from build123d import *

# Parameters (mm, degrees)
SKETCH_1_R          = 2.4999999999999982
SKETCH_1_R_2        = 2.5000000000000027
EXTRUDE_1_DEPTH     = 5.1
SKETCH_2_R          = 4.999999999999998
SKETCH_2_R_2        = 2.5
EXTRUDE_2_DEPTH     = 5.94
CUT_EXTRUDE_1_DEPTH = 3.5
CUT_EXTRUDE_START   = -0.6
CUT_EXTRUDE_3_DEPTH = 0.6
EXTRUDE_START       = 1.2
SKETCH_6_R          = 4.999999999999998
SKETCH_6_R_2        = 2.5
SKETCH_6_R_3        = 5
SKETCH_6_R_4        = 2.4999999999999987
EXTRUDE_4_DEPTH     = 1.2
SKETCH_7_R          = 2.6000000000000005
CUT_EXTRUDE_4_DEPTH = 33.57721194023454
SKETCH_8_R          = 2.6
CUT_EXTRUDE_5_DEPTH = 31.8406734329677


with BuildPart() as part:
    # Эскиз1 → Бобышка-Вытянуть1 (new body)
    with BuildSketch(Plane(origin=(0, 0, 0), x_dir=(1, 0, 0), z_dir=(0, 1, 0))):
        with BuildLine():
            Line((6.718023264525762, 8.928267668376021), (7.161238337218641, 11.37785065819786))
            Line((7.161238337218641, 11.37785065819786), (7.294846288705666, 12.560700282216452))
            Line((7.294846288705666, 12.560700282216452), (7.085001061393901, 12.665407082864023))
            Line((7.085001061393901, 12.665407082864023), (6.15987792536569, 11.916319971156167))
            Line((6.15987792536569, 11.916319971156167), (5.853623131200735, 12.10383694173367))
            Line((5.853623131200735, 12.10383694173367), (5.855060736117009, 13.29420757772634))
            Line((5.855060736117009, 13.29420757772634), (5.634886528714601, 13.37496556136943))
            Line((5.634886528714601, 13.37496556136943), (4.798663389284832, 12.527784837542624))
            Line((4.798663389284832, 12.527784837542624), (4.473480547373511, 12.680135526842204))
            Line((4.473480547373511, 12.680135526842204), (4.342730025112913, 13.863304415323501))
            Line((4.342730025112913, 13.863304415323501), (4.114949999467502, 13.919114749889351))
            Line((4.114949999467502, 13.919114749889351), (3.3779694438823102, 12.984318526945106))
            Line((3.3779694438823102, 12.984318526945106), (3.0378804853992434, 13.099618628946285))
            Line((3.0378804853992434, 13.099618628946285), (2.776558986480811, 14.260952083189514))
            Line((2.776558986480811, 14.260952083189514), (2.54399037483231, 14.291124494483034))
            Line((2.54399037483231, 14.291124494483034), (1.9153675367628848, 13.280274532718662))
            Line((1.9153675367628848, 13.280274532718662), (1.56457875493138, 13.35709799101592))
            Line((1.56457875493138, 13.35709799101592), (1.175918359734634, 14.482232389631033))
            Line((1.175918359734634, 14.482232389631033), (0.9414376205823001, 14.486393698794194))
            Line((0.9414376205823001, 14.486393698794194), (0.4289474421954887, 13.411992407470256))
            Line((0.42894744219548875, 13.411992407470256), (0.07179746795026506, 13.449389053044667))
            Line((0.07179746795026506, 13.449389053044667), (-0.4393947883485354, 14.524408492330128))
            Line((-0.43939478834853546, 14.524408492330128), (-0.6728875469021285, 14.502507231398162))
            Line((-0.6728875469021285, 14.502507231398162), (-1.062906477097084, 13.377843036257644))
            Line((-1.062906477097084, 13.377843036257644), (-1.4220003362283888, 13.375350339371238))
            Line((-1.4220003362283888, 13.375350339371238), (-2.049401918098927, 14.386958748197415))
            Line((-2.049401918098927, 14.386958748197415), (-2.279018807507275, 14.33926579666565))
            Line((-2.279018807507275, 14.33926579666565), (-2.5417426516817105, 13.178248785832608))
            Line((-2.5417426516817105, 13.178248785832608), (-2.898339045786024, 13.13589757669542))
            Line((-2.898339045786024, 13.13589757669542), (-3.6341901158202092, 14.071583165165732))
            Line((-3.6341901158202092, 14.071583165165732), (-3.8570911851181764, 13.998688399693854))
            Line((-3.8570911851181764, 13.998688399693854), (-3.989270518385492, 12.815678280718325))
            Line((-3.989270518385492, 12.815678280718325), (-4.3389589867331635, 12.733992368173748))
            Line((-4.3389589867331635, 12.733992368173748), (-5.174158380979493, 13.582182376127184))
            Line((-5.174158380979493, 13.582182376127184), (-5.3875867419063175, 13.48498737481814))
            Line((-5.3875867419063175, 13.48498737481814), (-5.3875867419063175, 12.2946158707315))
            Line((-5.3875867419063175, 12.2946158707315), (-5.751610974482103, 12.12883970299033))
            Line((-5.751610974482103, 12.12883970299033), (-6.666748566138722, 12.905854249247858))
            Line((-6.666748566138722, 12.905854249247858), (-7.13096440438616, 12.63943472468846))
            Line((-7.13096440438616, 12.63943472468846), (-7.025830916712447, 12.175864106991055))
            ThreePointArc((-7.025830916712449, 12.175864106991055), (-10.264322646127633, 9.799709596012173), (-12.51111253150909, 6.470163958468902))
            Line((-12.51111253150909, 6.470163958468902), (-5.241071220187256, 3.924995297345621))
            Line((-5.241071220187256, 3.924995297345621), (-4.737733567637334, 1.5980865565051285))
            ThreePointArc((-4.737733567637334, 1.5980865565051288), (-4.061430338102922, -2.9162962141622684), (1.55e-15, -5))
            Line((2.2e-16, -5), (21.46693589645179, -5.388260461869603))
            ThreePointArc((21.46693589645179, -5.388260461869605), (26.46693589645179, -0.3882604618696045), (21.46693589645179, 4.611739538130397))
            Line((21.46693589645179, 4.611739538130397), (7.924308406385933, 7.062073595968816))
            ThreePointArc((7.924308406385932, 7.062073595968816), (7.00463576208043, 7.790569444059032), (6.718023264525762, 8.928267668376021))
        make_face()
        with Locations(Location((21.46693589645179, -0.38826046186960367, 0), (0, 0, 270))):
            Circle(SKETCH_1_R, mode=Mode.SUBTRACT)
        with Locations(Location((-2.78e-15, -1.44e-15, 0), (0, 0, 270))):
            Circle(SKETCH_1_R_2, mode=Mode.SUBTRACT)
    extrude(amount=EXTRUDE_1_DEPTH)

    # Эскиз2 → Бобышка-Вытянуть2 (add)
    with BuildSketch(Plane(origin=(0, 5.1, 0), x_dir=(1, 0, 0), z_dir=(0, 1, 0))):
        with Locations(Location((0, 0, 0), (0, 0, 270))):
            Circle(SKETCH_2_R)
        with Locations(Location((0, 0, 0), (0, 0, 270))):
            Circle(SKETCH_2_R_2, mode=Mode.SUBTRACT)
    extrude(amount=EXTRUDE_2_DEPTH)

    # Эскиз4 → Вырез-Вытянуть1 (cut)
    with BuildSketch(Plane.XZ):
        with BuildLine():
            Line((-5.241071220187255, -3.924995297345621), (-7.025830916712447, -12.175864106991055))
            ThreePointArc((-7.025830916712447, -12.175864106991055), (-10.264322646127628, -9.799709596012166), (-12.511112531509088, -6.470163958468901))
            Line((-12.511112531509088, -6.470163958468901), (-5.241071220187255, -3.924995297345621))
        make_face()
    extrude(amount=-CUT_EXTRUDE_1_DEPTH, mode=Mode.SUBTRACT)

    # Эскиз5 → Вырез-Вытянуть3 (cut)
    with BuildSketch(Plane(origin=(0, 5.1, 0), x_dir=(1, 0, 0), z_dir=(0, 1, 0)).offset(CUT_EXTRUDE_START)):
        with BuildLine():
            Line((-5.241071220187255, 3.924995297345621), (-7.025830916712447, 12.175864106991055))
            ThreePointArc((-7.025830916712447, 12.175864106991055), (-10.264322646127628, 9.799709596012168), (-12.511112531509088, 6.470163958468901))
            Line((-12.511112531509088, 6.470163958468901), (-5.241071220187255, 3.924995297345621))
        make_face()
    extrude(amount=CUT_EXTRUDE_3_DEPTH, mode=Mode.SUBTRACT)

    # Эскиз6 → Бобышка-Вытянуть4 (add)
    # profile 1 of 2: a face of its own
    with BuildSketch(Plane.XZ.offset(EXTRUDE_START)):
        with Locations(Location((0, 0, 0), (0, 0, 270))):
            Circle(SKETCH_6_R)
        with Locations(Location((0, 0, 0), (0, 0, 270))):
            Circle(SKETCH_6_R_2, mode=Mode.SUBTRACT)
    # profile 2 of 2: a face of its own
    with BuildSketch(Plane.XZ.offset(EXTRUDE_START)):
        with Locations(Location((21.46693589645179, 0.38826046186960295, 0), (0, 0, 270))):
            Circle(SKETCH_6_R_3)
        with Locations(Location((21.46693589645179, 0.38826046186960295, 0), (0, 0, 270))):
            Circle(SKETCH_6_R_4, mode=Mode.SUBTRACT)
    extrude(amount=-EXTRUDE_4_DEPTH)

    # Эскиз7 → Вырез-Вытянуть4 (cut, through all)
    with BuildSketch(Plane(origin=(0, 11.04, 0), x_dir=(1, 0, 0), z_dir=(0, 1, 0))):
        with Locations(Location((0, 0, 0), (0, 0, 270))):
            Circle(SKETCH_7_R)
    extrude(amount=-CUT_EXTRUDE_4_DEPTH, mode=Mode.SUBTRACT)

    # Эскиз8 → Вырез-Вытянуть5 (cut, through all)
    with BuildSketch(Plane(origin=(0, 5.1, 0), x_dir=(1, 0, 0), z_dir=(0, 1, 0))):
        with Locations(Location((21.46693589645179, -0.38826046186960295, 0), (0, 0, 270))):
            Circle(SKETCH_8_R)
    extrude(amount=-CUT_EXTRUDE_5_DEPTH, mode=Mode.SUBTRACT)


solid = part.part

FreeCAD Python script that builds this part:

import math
import FreeCAD as App
import Part
import Sketcher
Q = App.Units.Quantity

doc = App.newDocument("Part")
params = doc.addObject("Spreadsheet::Sheet", "Params")
for row, (alias, value) in enumerate([
    ("sketch1_diameter", "5 mm"),
    ("sketch1_diameter2", "5 mm"),
    ("sketch1_radius", "5 mm"),
    ("sketch1_radius2", "5 mm"),
    ("pad1_length", "5.1 mm"),
    ("sketch2_diameter", "10 mm"),
    ("sketch2_diameter2", "5 mm"),
    ("pad2_length", "5.94 mm"),
    ("pocket1_length", "3.5 mm"),
    ("pocket2_length", "0.6 mm"),
    ("sketch5_diameter", "10 mm"),
    ("sketch5_diameter2", "5 mm"),
    ("pad3_length", "1.2 mm"),
    ("sketch6_diameter", "5.2 mm"),
    ("sketch7_diameter", "5.2 mm"),
], start=1):
    params.set(f"A{row}", alias)
    params.set(f"B{row}", "=" + value)
    params.setAlias(f"B{row}", alias)

body = doc.addObject("PartDesign::Body", "Body")

# Sketch on XZ plane
sketch1 = doc.addObject("Sketcher::SketchObject", "Sketch")
body.addObject(sketch1)
sketch1.AttachmentSupport = (doc.XZ_Plane, [""])
sketch1.MapMode = "FlatFace"
sketch1.addGeometry([
    Part.LineSegment(App.Vector(6.718023, -8.928268, 0), App.Vector(7.161238, -11.377851, 0)),  # 0
    Part.LineSegment(App.Vector(7.161238, -11.377851, 0), App.Vector(7.294846, -12.5607, 0)),  # 1
    Part.LineSegment(App.Vector(7.294846, -12.5607, 0), App.Vector(7.085001, -12.665407, 0)),  # 2
    Part.LineSegment(App.Vector(7.085001, -12.665407, 0), App.Vector(6.159878, -11.91632, 0)),  # 3
    Part.LineSegment(App.Vector(6.159878, -11.91632, 0), App.Vector(5.853623, -12.103837, 0)),  # 4
    Part.LineSegment(App.Vector(5.853623, -12.103837, 0), App.Vector(5.855061, -13.294208, 0)),  # 5
    Part.LineSegment(App.Vector(5.855061, -13.294208, 0), App.Vector(5.634887, -13.374966, 0)),  # 6
    Part.LineSegment(App.Vector(5.634887, -13.374966, 0), App.Vector(4.798663, -12.527785, 0)),  # 7
    Part.LineSegment(App.Vector(4.798663, -12.527785, 0), App.Vector(4.473481, -12.680136, 0)),  # 8
    Part.LineSegment(App.Vector(4.473481, -12.680136, 0), App.Vector(4.34273, -13.863304, 0)),  # 9
    Part.LineSegment(App.Vector(4.34273, -13.863304, 0), App.Vector(4.11495, -13.919115, 0)),  # 10
    Part.LineSegment(App.Vector(4.11495, -13.919115, 0), App.Vector(3.377969, -12.984319, 0)),  # 11
    Part.LineSegment(App.Vector(3.377969, -12.984319, 0), App.Vector(3.03788, -13.099619, 0)),  # 12
    Part.LineSegment(App.Vector(3.03788, -13.099619, 0), App.Vector(2.776559, -14.260952, 0)),  # 13
    Part.LineSegment(App.Vector(2.776559, -14.260952, 0), App.Vector(2.54399, -14.291124, 0)),  # 14
    Part.LineSegment(App.Vector(2.54399, -14.291124, 0), App.Vector(1.915368, -13.280275, 0)),  # 15
    Part.LineSegment(App.Vector(1.915368, -13.280275, 0), App.Vector(1.564579, -13.357098, 0)),  # 16
    Part.LineSegment(App.Vector(1.564579, -13.357098, 0), App.Vector(1.175918, -14.482232, 0)),  # 17
    Part.LineSegment(App.Vector(1.175918, -14.482232, 0), App.Vector(0.941438, -14.486394, 0)),  # 18
    Part.LineSegment(App.Vector(0.941438, -14.486394, 0), App.Vector(0.428947, -13.411992, 0)),  # 19
    Part.LineSegment(App.Vector(0.428947, -13.411992, 0), App.Vector(0.071797, -13.449389, 0)),  # 20
    Part.LineSegment(App.Vector(0.071797, -13.449389, 0), App.Vector(-0.439395, -14.524408, 0)),  # 21
    Part.LineSegment(App.Vector(-0.439395, -14.524408, 0), App.Vector(-0.672888, -14.502507, 0)),  # 22
    Part.LineSegment(App.Vector(-0.672888, -14.502507, 0), App.Vector(-1.062906, -13.377843, 0)),  # 23
    Part.LineSegment(App.Vector(-1.062906, -13.377843, 0), App.Vector(-1.422, -13.37535, 0)),  # 24
    Part.LineSegment(App.Vector(-1.422, -13.37535, 0), App.Vector(-2.049402, -14.386959, 0)),  # 25
    Part.LineSegment(App.Vector(-2.049402, -14.386959, 0), App.Vector(-2.279019, -14.339266, 0)),  # 26
    Part.LineSegment(App.Vector(-2.279019, -14.339266, 0), App.Vector(-2.541743, -13.178249, 0)),  # 27
    Part.LineSegment(App.Vector(-2.541743, -13.178249, 0), App.Vector(-2.898339, -13.135898, 0)),  # 28
    Part.LineSegment(App.Vector(-2.898339, -13.135898, 0), App.Vector(-3.63419, -14.071583, 0)),  # 29
    Part.LineSegment(App.Vector(-3.63419, -14.071583, 0), App.Vector(-3.857091, -13.998688, 0)),  # 30
    Part.LineSegment(App.Vector(-3.857091, -13.998688, 0), App.Vector(-3.989271, -12.815678, 0)),  # 31
    Part.LineSegment(App.Vector(-3.989271, -12.815678, 0), App.Vector(-4.338959, -12.733992, 0)),  # 32
    Part.LineSegment(App.Vector(-4.338959, -12.733992, 0), App.Vector(-5.174158, -13.582182, 0)),  # 33
    Part.LineSegment(App.Vector(-5.174158, -13.582182, 0), App.Vector(-5.387587, -13.484987, 0)),  # 34
    Part.LineSegment(App.Vector(-5.387587, -13.484987, 0), App.Vector(-5.387587, -12.294616, 0)),  # 35
    Part.LineSegment(App.Vector(-5.387587, -12.294616, 0), App.Vector(-5.751611, -12.12884, 0)),  # 36
    Part.LineSegment(App.Vector(-5.751611, -12.12884, 0), App.Vector(-6.666749, -12.905854, 0)),  # 37
    Part.LineSegment(App.Vector(-6.666749, -12.905854, 0), App.Vector(-7.130964, -12.639435, 0)),  # 38
    Part.LineSegment(App.Vector(-7.130964, -12.639435, 0), App.Vector(-7.025831, -12.175864, 0)),  # 39
    Part.ArcOfCircle(Part.Circle(App.Vector(-1.809542, -1.671548, 0), App.Vector(0, 0, 1), 11.728185), math.radians(-155.848394), math.radians(-116.408319)),  # 40
    Part.LineSegment(App.Vector(-12.511113, -6.470164, 0), App.Vector(-5.241071, -3.924995, 0)),  # 41
    Part.LineSegment(App.Vector(-5.241071, -3.924995, 0), App.Vector(-4.737734, -1.598087, 0)),  # 42
    Part.ArcOfCircle(Part.Circle(App.Vector(0, 0, 0), App.Vector(0, 0, 1), 5), math.radians(90), math.radians(198.639783)),  # 43
    Part.LineSegment(App.Vector(0, 5, 0), App.Vector(21.466936, 5.38826, 0)),  # 44
    Part.ArcOfCircle(Part.Circle(App.Vector(21.466936, 0.38826, 0), App.Vector(0, 0, 1), 5), math.radians(-90), math.radians(90)),  # 45
    Part.LineSegment(App.Vector(21.466936, -4.61174, 0), App.Vector(7.924308, -7.062074, 0)),  # 46
    Part.ArcOfCircle(Part.Circle(App.Vector(8.538236, -8.78187, 0), App.Vector(0, 0, 1), 1.826091), math.radians(109.645397), math.radians(184.598331)),  # 47
    Part.Circle(App.Vector(21.466936, 0.38826, 0), App.Vector(0, 0, 1), 2.5),  # 48
    Part.Circle(App.Vector(0, 0, 0), App.Vector(0, 0, 1), 2.5),  # 49
], False)
sketch1.addConstraint([
    Sketcher.Constraint("Coincident", 0, 2, 1, 1),
    Sketcher.Constraint("Coincident", 1, 2, 2, 1),
    Sketcher.Constraint("Coincident", 2, 2, 3, 1),
    Sketcher.Constraint("Coincident", 3, 2, 4, 1),
    Sketcher.Constraint("Coincident", 4, 2, 5, 1),
    Sketcher.Constraint("Coincident", 5, 2, 6, 1),
    Sketcher.Constraint("Coincident", 6, 2, 7, 1),
    Sketcher.Constraint("Coincident", 7, 2, 8, 1),
    Sketcher.Constraint("Coincident", 8, 2, 9, 1),
    Sketcher.Constraint("Coincident", 9, 2, 10, 1),
    Sketcher.Constraint("Coincident", 10, 2, 11, 1),
    Sketcher.Constraint("Coincident", 11, 2, 12, 1),
    Sketcher.Constraint("Coincident", 12, 2, 13, 1),
    Sketcher.Constraint("Coincident", 13, 2, 14, 1),
    Sketcher.Constraint("Coincident", 14, 2, 15, 1),
    Sketcher.Constraint("Coincident", 15, 2, 16, 1),
    Sketcher.Constraint("Coincident", 16, 2, 17, 1),
    Sketcher.Constraint("Coincident", 17, 2, 18, 1),
    Sketcher.Constraint("Coincident", 18, 2, 19, 1),
    Sketcher.Constraint("Coincident", 19, 2, 20, 1),
    Sketcher.Constraint("Coincident", 20, 2, 21, 1),
    Sketcher.Constraint("Coincident", 21, 2, 22, 1),
    Sketcher.Constraint("Coincident", 22, 2, 23, 1),
    Sketcher.Constraint("Coincident", 23, 2, 24, 1),
    Sketcher.Constraint("Coincident", 24, 2, 25, 1),
    Sketcher.Constraint("Coincident", 25, 2, 26, 1),
    Sketcher.Constraint("Coincident", 26, 2, 27, 1),
    Sketcher.Constraint("Coincident", 27, 2, 28, 1),
    Sketcher.Constraint("Coincident", 28, 2, 29, 1),
    Sketcher.Constraint("Coincident", 29, 2, 30, 1),
    Sketcher.Constraint("Coincident", 30, 2, 31, 1),
    Sketcher.Constraint("Coincident", 31, 2, 32, 1),
    Sketcher.Constraint("Coincident", 32, 2, 33, 1),
    Sketcher.Constraint("Coincident", 33, 2, 34, 1),
    Sketcher.Constraint("Coincident", 34, 2, 35, 1),
    Sketcher.Constraint("Coincident", 35, 2, 36, 1),
    Sketcher.Constraint("Coincident", 36, 2, 37, 1),
    Sketcher.Constraint("Coincident", 37, 2, 38, 1),
    Sketcher.Constraint("Coincident", 38, 2, 39, 1),
    Sketcher.Constraint("Coincident", 39, 2, 40, 2),
    Sketcher.Constraint("Coincident", 40, 1, 41, 1),
    Sketcher.Constraint("Coincident", 41, 2, 42, 1),
    Sketcher.Constraint("Coincident", 42, 2, 43, 2),
    Sketcher.Constraint("Coincident", 43, 1, 44, 1),
    Sketcher.Constraint("Coincident", 44, 2, 45, 2),
    Sketcher.Constraint("Coincident", 45, 1, 46, 1),
    Sketcher.Constraint("Coincident", 46, 2, 47, 1),
    Sketcher.Constraint("Coincident", 47, 2, 0, 1),
    Sketcher.Constraint("Vertical", 35),
    Sketcher.Constraint("Coincident", 43, 3, -1, 1),
    Sketcher.Constraint("Coincident", 49, 3, -1, 1),
    Sketcher.Constraint("Coincident", 48, 3, 45, 3),
    Sketcher.Constraint("PointOnObject", 43, 1, -2),
    Sketcher.Constraint("Diameter", 48, Q("5 mm")),
    Sketcher.Constraint("Diameter", 49, Q("5 mm")),
    Sketcher.Constraint("Radius", 43, Q("5 mm")),
    Sketcher.Constraint("Radius", 45, Q("5 mm")),
    Sketcher.Constraint("Radius", 47, Q("1.826091 mm")),
    Sketcher.Constraint("DistanceX", -1, 1, 2, 2, Q("7.085001 mm")),
    Sketcher.Constraint("DistanceX", 24, 2, -1, 1, Q("1.422 mm")),
    Sketcher.Constraint("Radius", 40, Q("11.728185 mm")),
    Sketcher.Constraint("DistanceY", 35, 1, 35, 2, Q("1.190372 mm")),
    Sketcher.Constraint("DistanceY", 1, 2, -1, 1, Q("12.5607 mm")),
    Sketcher.Constraint("DistanceX", 25, 2, -1, 1, Q("2.049402 mm")),
    Sketcher.Constraint("DistanceX", 47, 3, 45, 3, Q("12.9287 mm")),
    Sketcher.Constraint("DistanceY", 5, 2, 2, 2, Q("0.6288 mm")),
    Sketcher.Constraint("DistanceY", 8, 2, 4, 2, Q("0.576299 mm")),
    Sketcher.Constraint("DistanceY", 12, 2, 11, 2, Q("0.1153 mm")),
    Sketcher.Constraint("DistanceX", 12, 2, 8, 2, Q("1.4356 mm")),
    Sketcher.Constraint("DistanceX", 15, 2, 11, 2, Q("1.462602 mm")),
    Sketcher.Constraint("DistanceX", 16, 2, 12, 2, Q("1.473302 mm")),
    Sketcher.Constraint("DistanceY", 18, 2, 19, 2, Q("1.074401 mm")),
    Sketcher.Constraint("DistanceY", 21, 2, 22, 2, Q("0.021901 mm")),
    Sketcher.Constraint("DistanceX", 25, 2, 20, 2, Q("2.121199 mm")),
    Sketcher.Constraint("DistanceY", 24, 2, 27, 2, Q("0.197102 mm")),
    Sketcher.Constraint("DistanceX", 30, 2, 29, 2, Q("0.222901 mm")),
    Sketcher.Constraint("DistanceX", 33, 2, 32, 2, Q("0.835199 mm")),
    Sketcher.Constraint("DistanceY", 29, 2, 33, 2, Q("0.489401 mm")),
    Sketcher.Constraint("DistanceY", 30, 2, 34, 2, Q("0.513701 mm")),
    Sketcher.Constraint("DistanceY", 39, 2, 40, 1, Q("5.7057 mm")),
    Sketcher.Constraint("DistanceX", 40, 1, 36, 2, Q("6.759502 mm")),
    Sketcher.Constraint("DistanceX", 47, 3, 44, 2, Q("12.9287 mm")),
    Sketcher.Constraint("DistanceX", 47, 3, 45, 1, Q("12.9287 mm")),
    Sketcher.Constraint("DistanceX", 4, 2, 47, 2, Q("0.8644 mm")),
    Sketcher.Constraint("Distance", 1, Q("1.190372 mm")),
    Sketcher.Constraint("Distance", 3, Q("1.190372 mm")),
    Sketcher.Constraint("Distance", 5, Q("1.190372 mm")),
    Sketcher.Constraint("Distance", 7, Q("1.190372 mm")),
    Sketcher.Constraint("Distance", 9, Q("1.190372 mm")),
    Sketcher.Constraint("Distance", 11, Q("1.190372 mm")),
    Sketcher.Constraint("Distance", 13, Q("1.190372 mm")),
    Sketcher.Constraint("Distance", 15, Q("1.190372 mm")),
    Sketcher.Constraint("Distance", 17, Q("1.190372 mm")),
    Sketcher.Constraint("Distance", 19, Q("1.190372 mm")),
    Sketcher.Constraint("Distance", 21, Q("1.190372 mm")),
    Sketcher.Constraint("Distance", 23, Q("1.190372 mm")),
    Sketcher.Constraint("Distance", 25, Q("1.190372 mm")),
    Sketcher.Constraint("Distance", 27, Q("1.190372 mm")),
    Sketcher.Constraint("Distance", 29, Q("1.190372 mm")),
    Sketcher.Constraint("Distance", 31, Q("1.190372 mm")),
    Sketcher.Constraint("Distance", 33, Q("1.190372 mm")),
    Sketcher.Constraint("Distance", 37, Q("1.200512 mm")),
    Sketcher.Constraint("DistanceX", 40, 3, -1, 1, Q("1.809542 mm")),
    Sketcher.Constraint("DistanceY", -1, 1, 45, 3, Q("0.38826 mm")),
    Sketcher.Constraint("DistanceY", 47, 3, -1, 1, Q("8.78187 mm")),
    Sketcher.Constraint("DistanceX", -1, 1, 0, 2, Q("7.161238 mm")),
    Sketcher.Constraint("DistanceY", 0, 2, -1, 1, Q("11.377851 mm")),
    Sketcher.Constraint("DistanceY", 3, 2, -1, 1, Q("11.91632 mm")),
    Sketcher.Constraint("DistanceX", -1, 1, 5, 2, Q("5.855061 mm")),
    Sketcher.Constraint("DistanceX", -1, 1, 8, 2, Q("4.473481 mm")),
    Sketcher.Constraint("DistanceX", -1, 1, 9, 2, Q("4.34273 mm")),
    Sketcher.Constraint("DistanceX", -1, 1, 10, 2, Q("4.11495 mm")),
    Sketcher.Constraint("DistanceX", -1, 1, 11, 2, Q("3.377969 mm")),
    Sketcher.Constraint("DistanceY", 11, 2, -1, 1, Q("12.984319 mm")),
    Sketcher.Constraint("DistanceX", -1, 1, 13, 2, Q("2.776559 mm")),
    Sketcher.Constraint("DistanceX", -1, 1, 14, 2, Q("2.54399 mm")),
    Sketcher.Constraint("DistanceX", -1, 1, 17, 2, Q("1.175918 mm")),
    Sketcher.Constraint("DistanceY", 20, 2, -1, 1, Q("13.449389 mm")),
    Sketcher.Constraint("DistanceY", 21, 2, -1, 1, Q("14.524408 mm")),
    Sketcher.Constraint("DistanceY", 24, 2, -1, 1, Q("13.37535 mm")),
    Sketcher.Constraint("DistanceX", 26, 2, -1, 1, Q("2.279019 mm")),
    Sketcher.Constraint("DistanceX", 28, 2, -1, 1, Q("2.898339 mm")),
    Sketcher.Constraint("DistanceX", 29, 2, -1, 1, Q("3.63419 mm")),
    Sketcher.Constraint("DistanceY", 30, 2, -1, 1, Q("13.998688 mm")),
    Sketcher.Constraint("DistanceX", 31, 2, -1, 1, Q("3.989271 mm")),
    Sketcher.Constraint("DistanceX", 32, 2, -1, 1, Q("4.338959 mm")),
    Sketcher.Constraint("DistanceX", 36, 2, -1, 1, Q("5.751611 mm")),
    Sketcher.Constraint("DistanceY", 36, 2, -1, 1, Q("12.12884 mm")),
    Sketcher.Constraint("DistanceX", 37, 2, -1, 1, Q("6.666749 mm")),
    Sketcher.Constraint("DistanceX", 41, 2, -1, 1, Q("5.241071 mm")),
    Sketcher.Constraint("DistanceX", -1, 1, 46, 2, Q("7.924308 mm")),
    Sketcher.Constraint("DistanceY", 40, 3, 45, 3, Q("2.059808 mm")),
    Sketcher.Constraint("DistanceX", 40, 3, 47, 3, Q("10.347778 mm")),
    Sketcher.Constraint("DistanceY", 2, 2, 40, 3, Q("10.993859 mm")),
    Sketcher.Constraint("DistanceY", 6, 2, 4, 2, Q("1.271129 mm")),
    Sketcher.Constraint("DistanceX", 6, 2, 3, 2, Q("0.524991 mm")),
    Sketcher.Constraint("DistanceX", 7, 2, 4, 2, Q("1.05496 mm")),
    Sketcher.Constraint("DistanceY", 6, 2, 7, 2, Q("0.847181 mm")),
    Sketcher.Constraint("DistanceY", 14, 2, 10, 2, Q("0.37201 mm")),
    Sketcher.Constraint("DistanceY", 16, 2, 12, 2, Q("0.257479 mm")),
    Sketcher.Constraint("DistanceX", 18, 2, 17, 2, Q("0.234481 mm")),
    Sketcher.Constraint("DistanceY", 18, 2, 17, 2, Q("0.004161 mm")),
    Sketcher.Constraint("DistanceX", 23, 2, 22, 2, Q("0.390019 mm")),
    Sketcher.Constraint("DistanceX", 23, 2, 21, 2, Q("0.623512 mm")),
    Sketcher.Constraint("DistanceY", 22, 2, 26, 2, Q("0.163241 mm")),
    Sketcher.Constraint("DistanceY", 27, 2, 28, 2, Q("0.042351 mm")),
    Sketcher.Constraint("DistanceX", 34, 2, 33, 2, Q("0.213428 mm")),
    Sketcher.Constraint("DistanceY", 37, 2, 38, 2, Q("0.26642 mm")),
    Sketcher.Constraint("DistanceX", 40, 1, 38, 2, Q("5.380148 mm")),
    Sketcher.Constraint("DistanceY", 40, 1, 41, 2, Q("2.545169 mm")),
    Sketcher.Constraint("DistanceY", 41, 2, 42, 2, Q("2.326909 mm")),
])
sketch1.setExpression("Constraints[53]", "Params.sketch1_diameter")
sketch1.setExpression("Constraints[54]", "Params.sketch1_diameter2")
sketch1.setExpression("Constraints[55]", "Params.sketch1_radius")
sketch1.setExpression("Constraints[56]", "Params.sketch1_radius2")
pad1 = doc.addObject("PartDesign::Pad", "Pad")
body.addObject(pad1)
pad1.Profile = sketch1
pad1.setExpression("Length", "Params.pad1_length")
pad1.Reversed = True

# Sketch on XZ plane
sketch2 = doc.addObject("Sketcher::SketchObject", "Sketch001")
body.addObject(sketch2)
sketch2.AttachmentSupport = (doc.XZ_Plane, [""])
sketch2.MapMode = "FlatFace"
sketch2.AttachmentOffset = App.Placement(App.Vector(0, 0, -5.1), App.Rotation())
sketch2.addGeometry([
    Part.Circle(App.Vector(0, 0, 0), App.Vector(0, 0, 1), 5),
    Part.Circle(App.Vector(0, 0, 0), App.Vector(0, 0, 1), 2.5),
], False)
sketch2.addConstraint([
    Sketcher.Constraint("Coincident", 0, 3, -1, 1),
    Sketcher.Constraint("Coincident", 1, 3, -1, 1),
    Sketcher.Constraint("Diameter", 0, Q("10 mm")),
    Sketcher.Constraint("Diameter", 1, Q("5 mm")),
])
sketch2.setExpression("Constraints[2]", "Params.sketch2_diameter")
sketch2.setExpression("Constraints[3]", "Params.sketch2_diameter2")
pad2 = doc.addObject("PartDesign::Pad", "Pad001")
body.addObject(pad2)
pad2.Profile = sketch2
pad2.setExpression("Length", "Params.pad2_length")
pad2.Reversed = True

# Sketch on XZ plane
sketch3 = doc.addObject("Sketcher::SketchObject", "Sketch002")
body.addObject(sketch3)
sketch3.AttachmentSupport = (doc.XZ_Plane, [""])
sketch3.MapMode = "FlatFace"
sketch3.addGeometry([
    Part.LineSegment(App.Vector(-7.025831, -12.175864, 0), App.Vector(-5.241071, -3.924995, 0)),
    Part.LineSegment(App.Vector(-5.241071, -3.924995, 0), App.Vector(-12.511113, -6.470164, 0)),
    Part.ArcOfCircle(Part.Circle(App.Vector(-1.809542, -1.671548, 0), App.Vector(0, 0, 1), 11.728185), math.radians(-155.848394), math.radians(-116.408319)),
], False)
sketch3.addConstraint([
    Sketcher.Constraint("Coincident", 0, 2, 1, 1),
    Sketcher.Constraint("Coincident", 1, 2, 2, 1),
    Sketcher.Constraint("Coincident", 2, 2, 0, 1),
    Sketcher.Constraint("Radius", 2, Q("11.728185 mm")),
    Sketcher.Constraint("DistanceY", 2, 2, 1, 2, Q("5.7057 mm")),
    Sketcher.Constraint("DistanceX", 2, 3, -1, 1, Q("1.809542 mm")),
    Sketcher.Constraint("DistanceX", 0, 2, -1, 1, Q("5.241071 mm")),
    Sketcher.Constraint("DistanceX", 2, 2, -1, 1, Q("7.025831 mm")),
    Sketcher.Constraint("DistanceY", 1, 2, 0, 2, Q("2.545169 mm")),
    Sketcher.Constraint("DistanceY", 2, 3, -1, 1, Q("1.671548 mm")),
])
pocket1 = doc.addObject("PartDesign::Pocket", "Pocket")
body.addObject(pocket1)
pocket1.Profile = sketch3
pocket1.setExpression("Length", "Params.pocket1_length")

# Sketch on XZ plane
sketch4 = doc.addObject("Sketcher::SketchObject", "Sketch003")
body.addObject(sketch4)
sketch4.AttachmentSupport = (doc.XZ_Plane, [""])
sketch4.MapMode = "FlatFace"
sketch4.AttachmentOffset = App.Placement(App.Vector(0, 0, -4.5), App.Rotation())
sketch4.addGeometry([
    Part.LineSegment(App.Vector(-5.241071, -3.924995, 0), App.Vector(-7.025831, -12.175864, 0)),
    Part.ArcOfCircle(Part.Circle(App.Vector(-1.809542, -1.671548, 0), App.Vector(0, 0, 1), 11.728185), math.radians(-155.848394), math.radians(-116.408319)),
    Part.LineSegment(App.Vector(-12.511113, -6.470164, 0), App.Vector(-5.241071, -3.924995, 0)),
], False)
sketch4.addConstraint([
    Sketcher.Constraint("Coincident", 0, 2, 1, 2),
    Sketcher.Constraint("Coincident", 1, 1, 2, 1),
    Sketcher.Constraint("Coincident", 2, 2, 0, 1),
    Sketcher.Constraint("Radius", 1, Q("11.728185 mm")),
    Sketcher.Constraint("DistanceY", 0, 2, 1, 1, Q("5.7057 mm")),
    Sketcher.Constraint("DistanceX", 1, 3, -1, 1, Q("1.809542 mm")),
    Sketcher.Constraint("DistanceX", 0, 2, -1, 1, Q("7.025831 mm")),
    Sketcher.Constraint("DistanceX", 2, 2, -1, 1, Q("5.241071 mm")),
    Sketcher.Constraint("DistanceY", 1, 1, 2, 2, Q("2.545169 mm")),
    Sketcher.Constraint("DistanceY", 1, 3, -1, 1, Q("1.671548 mm")),
])
pocket2 = doc.addObject("PartDesign::Pocket", "Pocket001")
body.addObject(pocket2)
pocket2.Profile = sketch4
pocket2.setExpression("Length", "Params.pocket2_length")

# Sketch on XZ plane
sketch5 = doc.addObject("Sketcher::SketchObject", "Sketch004")
body.addObject(sketch5)
sketch5.AttachmentSupport = (doc.XZ_Plane, [""])
sketch5.MapMode = "FlatFace"
sketch5.AttachmentOffset = App.Placement(App.Vector(0, 0, 1.2), App.Rotation())
sketch5.addGeometry([
    Part.Circle(App.Vector(0, 0, 0), App.Vector(0, 0, 1), 5),
    Part.Circle(App.Vector(0, 0, 0), App.Vector(0, 0, 1), 2.5),
    Part.Circle(App.Vector(21.466936, 0.38826, 0), App.Vector(0, 0, 1), 5),
    Part.Circle(App.Vector(21.466936, 0.38826, 0), App.Vector(0, 0, 1), 2.5),
], False)
sketch5.addConstraint([
    Sketcher.Constraint("Coincident", 0, 3, -1, 1),
    Sketcher.Constraint("Coincident", 1, 3, -1, 1),
    Sketcher.Constraint("Coincident", 3, 3, 2, 3),
    Sketcher.Constraint("Equal", 0, 2),
    Sketcher.Constraint("Equal", 1, 3),
    Sketcher.Constraint("Diameter", 0, Q("10 mm")),
    Sketcher.Constraint("Diameter", 1, Q("5 mm")),
    Sketcher.Constraint("DistanceY", -1, 1, 2, 3, Q("0.38826 mm")),
    Sketcher.Constraint("DistanceX", -1, 1, 2, 3, Q("21.466936 mm")),
])
sketch5.setExpression("Constraints[5]", "Params.sketch5_diameter")
sketch5.setExpression("Constraints[6]", "Params.sketch5_diameter2")
pad3 = doc.addObject("PartDesign::Pad", "Pad002")
body.addObject(pad3)
pad3.Profile = sketch5
pad3.setExpression("Length", "Params.pad3_length")
pad3.Reversed = True

# Sketch on XZ plane
sketch6 = doc.addObject("Sketcher::SketchObject", "Sketch005")
body.addObject(sketch6)
sketch6.AttachmentSupport = (doc.XZ_Plane, [""])
sketch6.MapMode = "FlatFace"
sketch6.AttachmentOffset = App.Placement(App.Vector(0, 0, -11.04), App.Rotation())
sketch6.addGeometry(Part.Circle(App.Vector(0, 0, 0), App.Vector(0, 0, 1), 2.6), False)
sketch6.addConstraint([
    Sketcher.Constraint("Coincident", 0, 3, -1, 1),
    Sketcher.Constraint("Diameter", 0, Q("5.2 mm")),
])
sketch6.setExpression("Constraints[1]", "Params.sketch6_diameter")
pocket3 = doc.addObject("PartDesign::Pocket", "Pocket002")
body.addObject(pocket3)
pocket3.Profile = sketch6
pocket3.Type = "ThroughAll"
pocket3.Reversed = True

# Sketch on XZ plane
sketch7 = doc.addObject("Sketcher::SketchObject", "Sketch006")
body.addObject(sketch7)
sketch7.AttachmentSupport = (doc.XZ_Plane, [""])
sketch7.MapMode = "FlatFace"
sketch7.AttachmentOffset = App.Placement(App.Vector(0, 0, -5.1), App.Rotation())
sketch7.addGeometry(Part.Circle(App.Vector(21.466936, 0.38826, 0), App.Vector(0, 0, 1), 2.6), False)
sketch7.addConstraint([
    Sketcher.Constraint("Diameter", 0, Q("5.2 mm")),
    Sketcher.Constraint("DistanceY", -1, 1, 0, 3, Q("0.38826 mm")),
    Sketcher.Constraint("DistanceX", -1, 1, 0, 3, Q("21.466936 mm")),
])
sketch7.setExpression("Constraints[0]", "Params.sketch7_diameter")
pocket4 = doc.addObject("PartDesign::Pocket", "Pocket003")
body.addObject(pocket4)
pocket4.Profile = sketch7
pocket4.Type = "ThroughAll"
pocket4.Reversed = True

doc.recompute()
